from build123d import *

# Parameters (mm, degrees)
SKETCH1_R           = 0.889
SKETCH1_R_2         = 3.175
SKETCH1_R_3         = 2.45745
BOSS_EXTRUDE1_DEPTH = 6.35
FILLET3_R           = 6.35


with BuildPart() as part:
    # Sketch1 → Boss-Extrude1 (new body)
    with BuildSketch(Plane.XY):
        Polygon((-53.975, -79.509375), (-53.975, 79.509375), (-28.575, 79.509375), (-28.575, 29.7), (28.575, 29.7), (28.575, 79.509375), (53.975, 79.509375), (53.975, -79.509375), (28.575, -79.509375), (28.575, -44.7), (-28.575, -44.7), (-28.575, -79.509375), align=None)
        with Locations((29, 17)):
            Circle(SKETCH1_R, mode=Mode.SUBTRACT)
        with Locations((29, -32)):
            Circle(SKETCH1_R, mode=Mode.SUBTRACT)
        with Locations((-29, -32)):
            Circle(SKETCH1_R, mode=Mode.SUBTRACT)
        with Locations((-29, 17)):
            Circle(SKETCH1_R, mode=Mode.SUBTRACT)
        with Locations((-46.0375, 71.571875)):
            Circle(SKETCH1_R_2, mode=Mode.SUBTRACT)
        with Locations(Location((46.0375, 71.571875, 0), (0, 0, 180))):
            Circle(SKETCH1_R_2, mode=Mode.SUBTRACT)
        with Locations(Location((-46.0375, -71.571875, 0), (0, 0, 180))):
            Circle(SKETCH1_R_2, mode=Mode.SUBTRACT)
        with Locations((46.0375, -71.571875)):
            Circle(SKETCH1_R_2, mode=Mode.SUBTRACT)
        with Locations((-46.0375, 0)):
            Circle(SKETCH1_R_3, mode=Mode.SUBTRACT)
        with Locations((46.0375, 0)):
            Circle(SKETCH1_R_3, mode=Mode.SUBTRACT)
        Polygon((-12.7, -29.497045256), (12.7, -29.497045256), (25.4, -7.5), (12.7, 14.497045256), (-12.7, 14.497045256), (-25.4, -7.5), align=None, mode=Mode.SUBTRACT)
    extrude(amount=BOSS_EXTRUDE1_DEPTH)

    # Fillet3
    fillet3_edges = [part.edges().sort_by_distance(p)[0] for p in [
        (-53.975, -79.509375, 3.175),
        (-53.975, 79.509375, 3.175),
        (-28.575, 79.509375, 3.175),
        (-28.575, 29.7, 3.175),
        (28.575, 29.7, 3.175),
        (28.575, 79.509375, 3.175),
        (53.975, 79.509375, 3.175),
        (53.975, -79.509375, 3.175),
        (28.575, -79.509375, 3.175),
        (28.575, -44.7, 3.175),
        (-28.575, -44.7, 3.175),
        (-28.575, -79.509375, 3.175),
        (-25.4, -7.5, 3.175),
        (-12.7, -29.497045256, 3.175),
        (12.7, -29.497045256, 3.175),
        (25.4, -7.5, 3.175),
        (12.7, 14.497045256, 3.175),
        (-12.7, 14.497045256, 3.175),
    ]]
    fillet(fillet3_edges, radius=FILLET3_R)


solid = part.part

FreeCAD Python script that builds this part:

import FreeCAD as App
import Part
import Sketcher
Q = App.Units.Quantity


def edges_at(feature, points):
    """Names of the edges that pass closest to the given points."""
    edges = feature.Shape.Edges
    near = lambda p: min(range(len(edges)), key=lambda i: edges[i].distToShape(Part.Vertex(*p))[0])
    return sorted({f"Edge{near(p) + 1}" for p in points})


def add_polygon(sketch, points):
    """Adds a closed chain of lines whose ends are joined by coincident constraints."""
    first, n = sketch.GeometryCount, len(points)
    for a, b in zip(points, points[1:] + points[:1]):
        sketch.addGeometry(Part.LineSegment(App.Vector(*a, 0), App.Vector(*b, 0)), False)
    for i in range(n):
        sketch.addConstraint(Sketcher.Constraint("Coincident", first + i, 2, first + (i + 1) % n, 1))

doc = App.newDocument("Part")
body = doc.addObject("PartDesign::Body", "Body")

# Sketch on XY plane
sketch1 = body.newObject("Sketcher::SketchObject", "Sketch")
sketch1.AttachmentSupport = (doc.getObject("XY_Plane"), [""])
sketch1.MapMode = "FlatFace"
add_polygon(sketch1, [(-54, 79.5), (-54, -79.5), (-28.6, -79.5), (-28.6, -44.7), (28.6, -44.7), (28.6, -79.5), (54, -79.5), (54, 79.5), (28.6, 79.5), (28.6, 29.7), (-28.6, 29.7), (-28.6, 79.5)])  # lines 0-11
sketch1.addGeometry(Part.Circle(App.Vector(46, -71.6, 0), App.Vector(0, 0, 1), 3.2), False)  # 12
sketch1.addGeometry(Part.Circle(App.Vector(29, -32, 0), App.Vector(0, 0, 1), 0.9), False)  # 13
sketch1.addGeometry(Part.Circle(App.Vector(-46, -71.6, 0), App.Vector(0, 0, 1), 3.2), False)  # 14
add_polygon(sketch1, [(-12.7, -29.5), (-25.4, -7.5), (-12.7, 14.5), (12.7, 14.5), (25.4, -7.5), (12.7, -29.5)])  # lines 15-20
sketch1.addGeometry(Part.Circle(App.Vector(-29, -32, 0), App.Vector(0, 0, 1), 0.9), False)  # 21
sketch1.addGeometry(Part.Circle(App.Vector(46, 0, 0), App.Vector(0, 0, 1), 2.5), False)  # 22
sketch1.addGeometry(Part.Circle(App.Vector(29, 17, 0), App.Vector(0, 0, 1), 0.9), False)  # 23
sketch1.addGeometry(Part.Circle(App.Vector(46, 71.6, 0), App.Vector(0, 0, 1), 3.2), False)  # 24
sketch1.addGeometry(Part.Circle(App.Vector(-29, 17, 0), App.Vector(0, 0, 1), 0.9), False)  # 25
sketch1.addGeometry(Part.Circle(App.Vector(-46, 0, 0), App.Vector(0, 0, 1), 2.5), False)  # 26
sketch1.addGeometry(Part.Circle(App.Vector(-46, 71.6, 0), App.Vector(0, 0, 1), 3.2), False)  # 27
sketch1.addConstraint(Sketcher.Constraint("Vertical", 0))
sketch1.addConstraint(Sketcher.Constraint("Horizontal", 1))
sketch1.addConstraint(Sketcher.Constraint("Vertical", 2))
sketch1.addConstraint(Sketcher.Constraint("Horizontal", 3))
sketch1.addConstraint(Sketcher.Constraint("Vertical", 4))
sketch1.addConstraint(Sketcher.Constraint("Horizontal", 5))
sketch1.addConstraint(Sketcher.Constraint("Vertical", 6))
sketch1.addConstraint(Sketcher.Constraint("Horizontal", 7))
sketch1.addConstraint(Sketcher.Constraint("Vertical", 8))
sketch1.addConstraint(Sketcher.Constraint("Horizontal", 9))
sketch1.addConstraint(Sketcher.Constraint("Vertical", 10))
sketch1.addConstraint(Sketcher.Constraint("Horizontal", 11))
sketch1.addConstraint(Sketcher.Constraint("Horizontal", 17))
sketch1.addConstraint(Sketcher.Constraint("Horizontal", 20))
sketch1.addConstraint(Sketcher.Constraint("Equal", 12, 14))
sketch1.addConstraint(Sketcher.Constraint("Equal", 13, 21))
sketch1.addConstraint(Sketcher.Constraint("Equal", 21, 23))
sketch1.addConstraint(Sketcher.Constraint("Equal", 14, 24))
sketch1.addConstraint(Sketcher.Constraint("Equal", 23, 25))
sketch1.addConstraint(Sketcher.Constraint("Equal", 22, 26))
sketch1.addConstraint(Sketcher.Constraint("Equal", 24, 27))
sketch1.addConstraint(Sketcher.Constraint("Symmetric", 14, 3, 24, 3, -1, 1))
sketch1.addConstraint(Sketcher.Constraint("Symmetric", 22, 3, 26, 3, -1, 1))
sketch1.addConstraint(Sketcher.Constraint("Symmetric", 12, 3, 27, 3, -1, 1))
sketch1.addConstraint(Sketcher.Constraint("Symmetric", 0, 2, 6, 2, -1, 1))
sketch1.addConstraint(Sketcher.Constraint("Symmetric", 4, 2, 10, 2, -1, 1))
sketch1.addConstraint(Sketcher.Constraint("Symmetric", 12, 3, 14, 3, -2))
sketch1.addConstraint(Sketcher.Constraint("Symmetric", 13, 3, 21, 3, -2))
sketch1.addConstraint(Sketcher.Constraint("Symmetric", 23, 3, 25, 3, -2))
sketch1.addConstraint(Sketcher.Constraint("Symmetric", 1, 2, 4, 2, -2))
sketch1.addConstraint(Sketcher.Constraint("Symmetric", 15, 2, 18, 2, -2))
sketch1.addConstraint(Sketcher.Constraint("PointOnObject", 22, 3, -1))
sketch1.addConstraint(Sketcher.Constraint("Parallel", 15, 18))
sketch1.addConstraint(Sketcher.Constraint("Parallel", 16, 19))
sketch1.addConstraint(Sketcher.Constraint("Vertical", 12, 3, 22, 3))
sketch1.addConstraint(Sketcher.Constraint("Vertical", 13, 3, 23, 3))
sketch1.addConstraint(Sketcher.Constraint("Vertical", 4, 2, 7, 2))
sketch1.addConstraint(Sketcher.Constraint("Vertical", 17, 2, 19, 2))
sketch1.addConstraint(Sketcher.Constraint("Vertical", 16, 2, 20, 2))
sketch1.addConstraint(Sketcher.Constraint("Equal", 11, 17))
sketch1.addConstraint(Sketcher.Constraint("Diameter", 12, Q("0.25 in")))
sketch1.addConstraint(Sketcher.Constraint("Diameter", 13, Q("0.07 in")))
sketch1.addConstraint(Sketcher.Constraint("DistanceX", 1, 1, 1, 2, Q("1 in")))
sketch1.addConstraint(Sketcher.Constraint("Distance", 15, Q("1 in")))
sketch1.addConstraint(Sketcher.Constraint("DistanceX", 15, 2, -1, 1, Q("1 in")))
sketch1.addConstraint(Sketcher.Constraint("Diameter", 22, Q("0.1935 in")))
sketch1.addConstraint(Sketcher.Constraint("DistanceX", 3, 1, 3, 2, Q("2.25 in")))
sketch1.addConstraint(Sketcher.Constraint("DistanceY", 2, 2, 21, 3, Q("0.5 in")))
sketch1.addConstraint(Sketcher.Constraint("DistanceY", 23, 3, 8, 2, Q("0.5 in")))
sketch1.addConstraint(Sketcher.Constraint("DistanceX", -1, 1, 12, 3, Q("1.8125 in")))
sketch1.addConstraint(Sketcher.Constraint("DistanceY", 0, 2, 14, 3, Q("0.3125 in")))
sketch1.addConstraint(Sketcher.Constraint("DistanceY", 0, 2, 0, 1, 159.01875))
sketch1.addConstraint(Sketcher.Constraint("DistanceX", -1, 1, 13, 3, 29.0))
sketch1.addConstraint(Sketcher.Constraint("DistanceY", 13, 3, -1, 1, 32.0))
sketch1.addConstraint(Sketcher.Constraint("DistanceY", -1, 1, 23, 3, 17.0))
sketch1.addConstraint(Sketcher.Constraint("DistanceY", 15, 2, -1, 1, 7.5))
pad1 = body.newObject("PartDesign::Pad", "Pad")
pad1.Profile = sketch1
pad1.Length = Q("0.25 in")
doc.recompute()

fillet = body.newObject("PartDesign::Fillet", "Fillet")
fillet.Base = (pad1, edges_at(pad1, [
    (-53.975, -79.509, 3.175),
    (-53.975, 79.509, 3.175),
    (-28.575, 79.509, 3.175),
    (-28.575, 29.7, 3.175),
    (28.575, 29.7, 3.175),
    (28.575, 79.509, 3.175),
    (53.975, 79.509, 3.175),
    (53.975, -79.509, 3.175),
    (28.575, -79.509, 3.175),
    (28.575, -44.7, 3.175),
    (-28.575, -44.7, 3.175),
    (-28.575, -79.509, 3.175),
    (-25.4, -7.5, 3.175),
    (-12.7, -29.497, 3.175),
    (12.7, -29.497, 3.175),
    (25.4, -7.5, 3.175),
    (12.7, 14.497, 3.175),
    (-12.7, 14.497, 3.175),
]))
fillet.Radius = Q("0.25 in")

doc.recompute()
